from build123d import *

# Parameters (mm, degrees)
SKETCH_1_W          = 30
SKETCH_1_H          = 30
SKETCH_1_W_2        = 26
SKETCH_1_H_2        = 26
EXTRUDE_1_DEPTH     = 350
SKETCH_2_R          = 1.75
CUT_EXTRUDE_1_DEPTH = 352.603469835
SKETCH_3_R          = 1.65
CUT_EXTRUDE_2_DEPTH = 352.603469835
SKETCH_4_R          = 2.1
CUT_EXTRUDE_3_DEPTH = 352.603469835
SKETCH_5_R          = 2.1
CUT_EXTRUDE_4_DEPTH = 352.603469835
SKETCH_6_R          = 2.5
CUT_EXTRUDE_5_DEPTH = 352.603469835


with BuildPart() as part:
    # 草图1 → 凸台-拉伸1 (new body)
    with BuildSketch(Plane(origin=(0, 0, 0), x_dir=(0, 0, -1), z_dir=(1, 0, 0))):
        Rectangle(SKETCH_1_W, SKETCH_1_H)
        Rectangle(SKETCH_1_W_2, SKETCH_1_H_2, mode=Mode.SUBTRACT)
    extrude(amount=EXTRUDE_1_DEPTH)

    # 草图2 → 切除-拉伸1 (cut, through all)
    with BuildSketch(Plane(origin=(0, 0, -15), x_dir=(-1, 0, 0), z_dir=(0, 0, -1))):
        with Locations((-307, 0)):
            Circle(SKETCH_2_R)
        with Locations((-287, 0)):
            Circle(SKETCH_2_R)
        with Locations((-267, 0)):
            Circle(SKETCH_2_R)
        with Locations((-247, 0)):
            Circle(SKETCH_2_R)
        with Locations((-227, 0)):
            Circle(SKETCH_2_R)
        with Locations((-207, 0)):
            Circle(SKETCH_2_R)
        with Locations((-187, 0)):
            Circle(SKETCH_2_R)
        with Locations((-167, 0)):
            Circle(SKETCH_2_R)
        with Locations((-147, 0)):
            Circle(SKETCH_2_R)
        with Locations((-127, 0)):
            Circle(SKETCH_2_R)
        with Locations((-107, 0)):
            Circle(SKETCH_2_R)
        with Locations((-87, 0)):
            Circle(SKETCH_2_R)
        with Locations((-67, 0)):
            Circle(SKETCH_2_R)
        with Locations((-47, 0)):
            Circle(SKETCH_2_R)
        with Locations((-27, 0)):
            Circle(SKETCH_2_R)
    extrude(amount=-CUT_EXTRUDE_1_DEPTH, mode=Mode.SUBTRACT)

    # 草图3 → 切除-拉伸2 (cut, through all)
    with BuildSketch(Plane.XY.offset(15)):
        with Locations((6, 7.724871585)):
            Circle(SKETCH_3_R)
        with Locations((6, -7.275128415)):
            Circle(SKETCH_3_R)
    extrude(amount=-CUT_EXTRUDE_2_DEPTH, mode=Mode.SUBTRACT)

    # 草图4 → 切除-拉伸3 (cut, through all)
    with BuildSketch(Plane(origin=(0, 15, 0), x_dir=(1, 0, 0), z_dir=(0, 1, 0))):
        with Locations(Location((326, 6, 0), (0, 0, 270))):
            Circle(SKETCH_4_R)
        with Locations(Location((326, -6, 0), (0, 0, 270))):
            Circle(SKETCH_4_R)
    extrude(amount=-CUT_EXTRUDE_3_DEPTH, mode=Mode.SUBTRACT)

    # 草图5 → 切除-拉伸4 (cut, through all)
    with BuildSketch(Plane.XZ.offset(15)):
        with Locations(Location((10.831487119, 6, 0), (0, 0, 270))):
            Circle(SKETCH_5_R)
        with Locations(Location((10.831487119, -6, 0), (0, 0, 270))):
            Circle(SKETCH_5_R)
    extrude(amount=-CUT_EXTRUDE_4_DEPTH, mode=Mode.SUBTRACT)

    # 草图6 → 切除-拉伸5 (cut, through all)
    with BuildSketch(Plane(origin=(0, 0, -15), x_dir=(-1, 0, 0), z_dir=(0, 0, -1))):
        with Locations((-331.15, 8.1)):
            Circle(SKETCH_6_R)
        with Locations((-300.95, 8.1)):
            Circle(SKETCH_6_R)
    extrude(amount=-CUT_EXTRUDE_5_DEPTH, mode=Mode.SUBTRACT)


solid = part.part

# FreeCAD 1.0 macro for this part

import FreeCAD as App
import Part
import Sketcher
from FreeCAD import Vector

doc = App.newDocument("Part")
params = doc.addObject("Spreadsheet::Sheet", "Params")
for row, (alias, value) in enumerate([
    ("sketch1_width", "30 mm"),
    ("sketch1_width2", "26 mm"),
    ("pad1_length", "350 mm"),
    ("sketch2_diameter", "3.5 mm"),
    ("sketch3_diameter", "3.3 mm"),
    ("sketch4_diameter", "4.2 mm"),
    ("sketch5_diameter", "4.2 mm"),
    ("sketch6_diameter", "5 mm"),
], start=1):
    params.set(f"A{row}", alias)
    params.set(f"B{row}", "=" + value)
    params.setAlias(f"B{row}", alias)

body = doc.addObject("PartDesign::Body", "Body")

sketch1 = body.newObject("Sketcher::SketchObject", "Sketch")
sketch1.AttachmentSupport = (doc.getObject("YZ_Plane"), [""])
sketch1.MapMode = "FlatFace"
sketch1.addGeometry(Part.LineSegment(Vector(15, 15, 0), Vector(-15, 15, 0)), False)
sketch1.addGeometry(Part.LineSegment(Vector(-15, 15, 0), Vector(-15, -15, 0)), False)
sketch1.addGeometry(Part.LineSegment(Vector(-15, -15, 0), Vector(15, -15, 0)), False)
sketch1.addGeometry(Part.LineSegment(Vector(15, -15, 0), Vector(15, 15, 0)), False)
sketch1.addGeometry(Part.LineSegment(Vector(-13, -13, 0), Vector(-13, 13, 0)), False)
sketch1.addGeometry(Part.LineSegment(Vector(-13, 13, 0), Vector(13, 13, 0)), False)
sketch1.addGeometry(Part.LineSegment(Vector(13, 13, 0), Vector(13, -13, 0)), False)
sketch1.addGeometry(Part.LineSegment(Vector(13, -13, 0), Vector(-13, -13, 0)), False)
sketch1.addConstraint(Sketcher.Constraint("Coincident", 0, 2, 1, 1))
sketch1.addConstraint(Sketcher.Constraint("Coincident", 1, 2, 2, 1))
sketch1.addConstraint(Sketcher.Constraint("Coincident", 2, 2, 3, 1))
sketch1.addConstraint(Sketcher.Constraint("Coincident", 3, 2, 0, 1))
sketch1.addConstraint(Sketcher.Constraint("Coincident", 4, 2, 5, 1))
sketch1.addConstraint(Sketcher.Constraint("Coincident", 5, 2, 6, 1))
sketch1.addConstraint(Sketcher.Constraint("Coincident", 6, 2, 7, 1))
sketch1.addConstraint(Sketcher.Constraint("Coincident", 7, 2, 4, 1))
sketch1.addConstraint(Sketcher.Constraint("Horizontal", 0))
sketch1.addConstraint(Sketcher.Constraint("Vertical", 1))
sketch1.addConstraint(Sketcher.Constraint("Horizontal", 2))
sketch1.addConstraint(Sketcher.Constraint("Vertical", 3))
sketch1.addConstraint(Sketcher.Constraint("Vertical", 4))
sketch1.addConstraint(Sketcher.Constraint("Horizontal", 5))
sketch1.addConstraint(Sketcher.Constraint("Vertical", 6))
sketch1.addConstraint(Sketcher.Constraint("Horizontal", 7))
sketch1.addConstraint(Sketcher.Constraint("Symmetric", 0, 2, 2, 2, -1, 1))
sketch1.addConstraint(Sketcher.Constraint("Symmetric", 4, 2, 6, 2, -1, 1))
sketch1.addConstraint(Sketcher.Constraint("Equal", 2, 1))
sketch1.addConstraint(Sketcher.Constraint("Equal", 7, 4))
sketch1.addConstraint(Sketcher.Constraint("DistanceX", 0, 2, 0, 1, 30.0))
sketch1.addConstraint(Sketcher.Constraint("DistanceX", 5, 1, 5, 2, 26.0))
sketch1.setExpression("Constraints[20]", "Params.sketch1_width")
sketch1.setExpression("Constraints[21]", "Params.sketch1_width2")
pad1 = body.newObject("PartDesign::Pad", "Pad")
pad1.Profile = sketch1
pad1.setExpression("Length", "Params.pad1_length")

sketch2 = body.newObject("Sketcher::SketchObject", "Sketch001")
sketch2.AttachmentSupport = (doc.getObject("XY_Plane"), [""])
sketch2.MapMode = "FlatFace"
sketch2.AttachmentOffset = App.Placement(Vector(0, 0, -15), App.Rotation())
sketch2.addGeometry(Part.Circle(Vector(307, 0, 0), Vector(0, 0, 1), 1.8), False)
sketch2.addGeometry(Part.Circle(Vector(287, 0, 0), Vector(0, 0, 1), 1.8), False)
sketch2.addGeometry(Part.Circle(Vector(267, 0, 0), Vector(0, 0, 1), 1.8), False)
sketch2.addGeometry(Part.Circle(Vector(247, 0, 0), Vector(0, 0, 1), 1.8), False)
sketch2.addGeometry(Part.Circle(Vector(227, 0, 0), Vector(0, 0, 1), 1.8), False)
sketch2.addGeometry(Part.Circle(Vector(207, 0, 0), Vector(0, 0, 1), 1.8), False)
sketch2.addGeometry(Part.Circle(Vector(187, 0, 0), Vector(0, 0, 1), 1.8), False)
sketch2.addGeometry(Part.Circle(Vector(167, 0, 0), Vector(0, 0, 1), 1.8), False)
sketch2.addGeometry(Part.Circle(Vector(147, 0, 0), Vector(0, 0, 1), 1.8), False)
sketch2.addGeometry(Part.Circle(Vector(127, 0, 0), Vector(0, 0, 1), 1.8), False)
sketch2.addGeometry(Part.Circle(Vector(107, 0, 0), Vector(0, 0, 1), 1.8), False)
sketch2.addGeometry(Part.Circle(Vector(87, 0, 0), Vector(0, 0, 1), 1.8), False)
sketch2.addGeometry(Part.Circle(Vector(67, 0, 0), Vector(0, 0, 1), 1.8), False)
sketch2.addGeometry(Part.Circle(Vector(47, 0, 0), Vector(0, 0, 1), 1.8), False)
sketch2.addGeometry(Part.Circle(Vector(27, 0, 0), Vector(0, 0, 1), 1.8), False)
sketch2.addConstraint(Sketcher.Constraint("Equal", 0, 1))
sketch2.addConstraint(Sketcher.Constraint("Equal", 1, 2))
sketch2.addConstraint(Sketcher.Constraint("Equal", 2, 3))
sketch2.addConstraint(Sketcher.Constraint("Equal", 3, 4))
sketch2.addConstraint(Sketcher.Constraint("Equal", 4, 5))
sketch2.addConstraint(Sketcher.Constraint("Equal", 5, 6))
sketch2.addConstraint(Sketcher.Constraint("Equal", 6, 7))
sketch2.addConstraint(Sketcher.Constraint("Equal", 7, 8))
sketch2.addConstraint(Sketcher.Constraint("Equal", 8, 9))
sketch2.addConstraint(Sketcher.Constraint("Equal", 9, 10))
sketch2.addConstraint(Sketcher.Constraint("Equal", 10, 11))
sketch2.addConstraint(Sketcher.Constraint("Equal", 11, 12))
sketch2.addConstraint(Sketcher.Constraint("Equal", 12, 13))
sketch2.addConstraint(Sketcher.Constraint("Equal", 13, 14))
sketch2.addConstraint(Sketcher.Constraint("PointOnObject", 0, 3, -1))
sketch2.addConstraint(Sketcher.Constraint("PointOnObject", 1, 3, -1))
sketch2.addConstraint(Sketcher.Constraint("PointOnObject", 2, 3, -1))
sketch2.addConstraint(Sketcher.Constraint("PointOnObject", 3, 3, -1))
sketch2.addConstraint(Sketcher.Constraint("PointOnObject", 4, 3, -1))
sketch2.addConstraint(Sketcher.Constraint("PointOnObject", 5, 3, -1))
sketch2.addConstraint(Sketcher.Constraint("PointOnObject", 6, 3, -1))
sketch2.addConstraint(Sketcher.Constraint("PointOnObject", 7, 3, -1))
sketch2.addConstraint(Sketcher.Constraint("PointOnObject", 8, 3, -1))
sketch2.addConstraint(Sketcher.Constraint("PointOnObject", 9, 3, -1))
sketch2.addConstraint(Sketcher.Constraint("PointOnObject", 10, 3, -1))
sketch2.addConstraint(Sketcher.Constraint("PointOnObject", 11, 3, -1))
sketch2.addConstraint(Sketcher.Constraint("PointOnObject", 12, 3, -1))
sketch2.addConstraint(Sketcher.Constraint("PointOnObject", 13, 3, -1))
sketch2.addConstraint(Sketcher.Constraint("PointOnObject", 14, 3, -1))
sketch2.addConstraint(Sketcher.Constraint("Diameter", 0, 3.5))
sketch2.addConstraint(Sketcher.Constraint("DistanceX", -1, 1, 0, 3, 307.0))
sketch2.addConstraint(Sketcher.Constraint("DistanceX", -1, 1, 1, 3, 287.0))
sketch2.addConstraint(Sketcher.Constraint("DistanceX", -1, 1, 2, 3, 267.0))
sketch2.addConstraint(Sketcher.Constraint("DistanceX", -1, 1, 3, 3, 247.0))
sketch2.addConstraint(Sketcher.Constraint("DistanceX", -1, 1, 4, 3, 227.0))
sketch2.addConstraint(Sketcher.Constraint("DistanceX", -1, 1, 5, 3, 207.0))
sketch2.addConstraint(Sketcher.Constraint("DistanceX", -1, 1, 6, 3, 187.0))
sketch2.addConstraint(Sketcher.Constraint("DistanceX", -1, 1, 7, 3, 167.0))
sketch2.addConstraint(Sketcher.Constraint("DistanceX", -1, 1, 8, 3, 147.0))
sketch2.addConstraint(Sketcher.Constraint("DistanceX", -1, 1, 9, 3, 127.0))
sketch2.addConstraint(Sketcher.Constraint("DistanceX", -1, 1, 10, 3, 107.0))
sketch2.addConstraint(Sketcher.Constraint("DistanceX", -1, 1, 11, 3, 87.0))
sketch2.addConstraint(Sketcher.Constraint("DistanceX", -1, 1, 12, 3, 67.0))
sketch2.addConstraint(Sketcher.Constraint("DistanceX", -1, 1, 13, 3, 47.0))
sketch2.addConstraint(Sketcher.Constraint("DistanceX", -1, 1, 14, 3, 27.0))
sketch2.setExpression("Constraints[29]", "Params.sketch2_diameter")
pocket1 = body.newObject("PartDesign::Pocket", "Pocket")
pocket1.Profile = sketch2
pocket1.Type = "ThroughAll"
pocket1.Reversed = True

sketch3 = body.newObject("Sketcher::SketchObject", "Sketch002")
sketch3.AttachmentSupport = (doc.getObject("XY_Plane"), [""])
sketch3.MapMode = "FlatFace"
sketch3.AttachmentOffset = App.Placement(Vector(0, 0, 15), App.Rotation())
sketch3.addGeometry(Part.Circle(Vector(6, 7.7, 0), Vector(0, 0, 1), 1.6), False)
sketch3.addGeometry(Part.Circle(Vector(6, -7.3, 0), Vector(0, 0, 1), 1.6), False)
sketch3.addConstraint(Sketcher.Constraint("Equal", 0, 1))
sketch3.addConstraint(Sketcher.Constraint("Vertical", 0, 3, 1, 3))
sketch3.addConstraint(Sketcher.Constraint("Diameter", 0, 3.3))
sketch3.addConstraint(Sketcher.Constraint("DistanceX", -1, 1, 0, 3, 6.0))
sketch3.addConstraint(Sketcher.Constraint("DistanceY", 1, 3, 0, 3, 15.0))
sketch3.addConstraint(Sketcher.Constraint("DistanceY", -1, 1, 0, 3, 7.724872))
sketch3.setExpression("Constraints[2]", "Params.sketch3_diameter")
pocket2 = body.newObject("PartDesign::Pocket", "Pocket001")
pocket2.Profile = sketch3
pocket2.Type = "ThroughAll"

sketch4 = body.newObject("Sketcher::SketchObject", "Sketch003")
sketch4.AttachmentSupport = (doc.getObject("XZ_Plane"), [""])
sketch4.MapMode = "FlatFace"
sketch4.AttachmentOffset = App.Placement(Vector(0, 0, -15), App.Rotation())
sketch4.addGeometry(Part.Circle(Vector(326, -6, 0), Vector(0, 0, 1), 2.1), False)
sketch4.addGeometry(Part.Circle(Vector(326, 6, 0), Vector(0, 0, 1), 2.1), False)
sketch4.addConstraint(Sketcher.Constraint("Equal", 0, 1))
sketch4.addConstraint(Sketcher.Constraint("Symmetric", 0, 3, 1, 3, -1))
sketch4.addConstraint(Sketcher.Constraint("Diameter", 0, 4.2))
sketch4.addConstraint(Sketcher.Constraint("DistanceX", -1, 1, 0, 3, 326.0))
sketch4.addConstraint(Sketcher.Constraint("DistanceY", 0, 3, -1, 1, 6.0))
sketch4.setExpression("Constraints[2]", "Params.sketch4_diameter")
pocket3 = body.newObject("PartDesign::Pocket", "Pocket002")
pocket3.Profile = sketch4
pocket3.Type = "ThroughAll"
pocket3.Reversed = True

sketch5 = body.newObject("Sketcher::SketchObject", "Sketch004")
sketch5.AttachmentSupport = (doc.getObject("XZ_Plane"), [""])
sketch5.MapMode = "FlatFace"
sketch5.AttachmentOffset = App.Placement(Vector(0, 0, 15), App.Rotation())
sketch5.addGeometry(Part.Circle(Vector(10.8, 6, 0), Vector(0, 0, 1), 2.1), False)
sketch5.addGeometry(Part.Circle(Vector(10.8, -6, 0), Vector(0, 0, 1), 2.1), False)
sketch5.addConstraint(Sketcher.Constraint("Equal", 0, 1))
sketch5.addConstraint(Sketcher.Constraint("Symmetric", 0, 3, 1, 3, -1))
sketch5.addConstraint(Sketcher.Constraint("Diameter", 0, 4.2))
sketch5.addConstraint(Sketcher.Constraint("DistanceY", -1, 1, 0, 3, 6.0))
sketch5.addConstraint(Sketcher.Constraint("DistanceX", -1, 1, 0, 3, 10.831487))
sketch5.setExpression("Constraints[2]", "Params.sketch5_diameter")
pocket4 = body.newObject("PartDesign::Pocket", "Pocket003")
pocket4.Profile = sketch5
pocket4.Type = "ThroughAll"

sketch6 = body.newObject("Sketcher::SketchObject", "Sketch005")
sketch6.AttachmentSupport = (doc.getObject("XY_Plane"), [""])
sketch6.MapMode = "FlatFace"
sketch6.AttachmentOffset = App.Placement(Vector(0, 0, -15), App.Rotation())
sketch6.addGeometry(Part.Circle(Vector(331.1, 8.1, 0), Vector(0, 0, 1), 2.5), False)
sketch6.addGeometry(Part.Circle(Vector(300.9, 8.1, 0), Vector(0, 0, 1), 2.5), False)
sketch6.addConstraint(Sketcher.Constraint("Equal", 0, 1))
sketch6.addConstraint(Sketcher.Constraint("Horizontal", 0, 3, 1, 3))
sketch6.addConstraint(Sketcher.Constraint("Diameter", 0, 5.0))
sketch6.addConstraint(Sketcher.Constraint("DistanceY", -1, 1, 0, 3, 8.1))
sketch6.addConstraint(Sketcher.Constraint("DistanceX", 1, 3, 0, 3, 30.2))
sketch6.addConstraint(Sketcher.Constraint("DistanceX", -1, 1, 0, 3, 331.15))
sketch6.setExpression("Constraints[2]", "Params.sketch6_diameter")
pocket5 = body.newObject("PartDesign::Pocket", "Pocket004")
pocket5.Profile = sketch6
pocket5.Type = "ThroughAll"
pocket5.Reversed = True

doc.recompute()
